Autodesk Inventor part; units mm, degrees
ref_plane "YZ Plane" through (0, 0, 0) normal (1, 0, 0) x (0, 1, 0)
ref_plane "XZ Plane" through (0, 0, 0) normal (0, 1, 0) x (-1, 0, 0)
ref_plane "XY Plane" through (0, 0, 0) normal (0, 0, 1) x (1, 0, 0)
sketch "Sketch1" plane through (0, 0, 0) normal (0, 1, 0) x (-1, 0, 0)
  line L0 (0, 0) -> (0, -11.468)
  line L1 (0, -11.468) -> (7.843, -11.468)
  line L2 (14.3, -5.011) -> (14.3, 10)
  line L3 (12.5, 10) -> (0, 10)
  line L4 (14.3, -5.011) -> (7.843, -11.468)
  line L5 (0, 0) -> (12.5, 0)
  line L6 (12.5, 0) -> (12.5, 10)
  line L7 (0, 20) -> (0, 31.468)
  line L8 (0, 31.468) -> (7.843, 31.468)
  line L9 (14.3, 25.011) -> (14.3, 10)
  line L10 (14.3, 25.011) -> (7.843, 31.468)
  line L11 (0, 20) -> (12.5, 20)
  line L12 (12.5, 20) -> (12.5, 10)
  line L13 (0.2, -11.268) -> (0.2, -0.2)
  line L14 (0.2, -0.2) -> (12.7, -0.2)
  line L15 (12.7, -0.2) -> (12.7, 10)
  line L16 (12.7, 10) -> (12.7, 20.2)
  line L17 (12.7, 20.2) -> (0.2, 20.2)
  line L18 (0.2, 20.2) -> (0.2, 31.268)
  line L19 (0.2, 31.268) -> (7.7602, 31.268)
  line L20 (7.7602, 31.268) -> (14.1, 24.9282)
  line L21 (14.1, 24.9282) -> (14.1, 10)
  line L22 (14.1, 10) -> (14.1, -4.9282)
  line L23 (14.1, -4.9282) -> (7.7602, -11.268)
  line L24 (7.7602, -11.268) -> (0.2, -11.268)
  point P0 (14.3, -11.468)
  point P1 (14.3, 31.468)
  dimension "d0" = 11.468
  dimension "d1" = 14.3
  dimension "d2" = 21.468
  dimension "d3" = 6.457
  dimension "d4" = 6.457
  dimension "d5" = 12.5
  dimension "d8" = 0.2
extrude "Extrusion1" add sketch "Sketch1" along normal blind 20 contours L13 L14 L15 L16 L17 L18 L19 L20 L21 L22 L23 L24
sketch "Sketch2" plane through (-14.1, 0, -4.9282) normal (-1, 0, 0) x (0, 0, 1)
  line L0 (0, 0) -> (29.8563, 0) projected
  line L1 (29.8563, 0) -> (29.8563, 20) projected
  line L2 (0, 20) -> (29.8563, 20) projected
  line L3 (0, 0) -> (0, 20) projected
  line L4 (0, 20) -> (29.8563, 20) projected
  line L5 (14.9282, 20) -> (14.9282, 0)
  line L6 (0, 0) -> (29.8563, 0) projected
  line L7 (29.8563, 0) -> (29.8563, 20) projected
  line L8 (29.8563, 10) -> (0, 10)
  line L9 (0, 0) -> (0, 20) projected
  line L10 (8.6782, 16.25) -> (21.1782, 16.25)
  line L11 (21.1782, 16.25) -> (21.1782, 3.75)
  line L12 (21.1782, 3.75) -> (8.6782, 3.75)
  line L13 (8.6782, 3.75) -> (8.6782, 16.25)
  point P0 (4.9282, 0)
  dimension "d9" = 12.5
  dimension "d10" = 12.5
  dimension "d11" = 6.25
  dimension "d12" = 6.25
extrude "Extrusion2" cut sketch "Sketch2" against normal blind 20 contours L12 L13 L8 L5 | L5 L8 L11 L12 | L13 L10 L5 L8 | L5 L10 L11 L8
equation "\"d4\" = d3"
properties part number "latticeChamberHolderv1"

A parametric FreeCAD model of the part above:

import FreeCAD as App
import Part
import Sketcher

V = App.Vector
Q = App.Units.Quantity

doc = App.newDocument("Part")
body = doc.addObject("PartDesign::Body", "Body")

sketch1 = body.newObject("Sketcher::SketchObject", "Sketch")
sketch1.AttachmentSupport = (doc.getObject("XZ_Plane"), [""])
sketch1.MapMode = "FlatFace"
sketch1.addGeometry([
    Part.LineSegment(V(-0.2, -0.2, 0), V(-0.2, -11.268, 0)),
    Part.LineSegment(V(-0.2, -11.268, 0), V(-7.7602, -11.268, 0)),
    Part.LineSegment(V(-7.7602, -11.268, 0), V(-14.1, -4.9282, 0)),
    Part.LineSegment(V(-14.1, -4.9282, 0), V(-14.1, 24.9282, 0)),
    Part.LineSegment(V(-14.1, 24.9282, 0), V(-7.7602, 31.268, 0)),
    Part.LineSegment(V(-7.7602, 31.268, 0), V(-0.2, 31.268, 0)),
    Part.LineSegment(V(-0.2, 31.268, 0), V(-0.2, 20.2, 0)),
    Part.LineSegment(V(-0.2, 20.2, 0), V(-12.7, 20.2, 0)),
    Part.LineSegment(V(-12.7, 20.2, 0), V(-12.7, -0.2, 0)),
    Part.LineSegment(V(-12.7, -0.2, 0), V(-0.2, -0.2, 0)),
], False)
sketch1.addConstraint([
    Sketcher.Constraint("Coincident", 0, 2, 1, 1),
    Sketcher.Constraint("Coincident", 1, 2, 2, 1),
    Sketcher.Constraint("Coincident", 2, 2, 3, 1),
    Sketcher.Constraint("Coincident", 3, 2, 4, 1),
    Sketcher.Constraint("Coincident", 4, 2, 5, 1),
    Sketcher.Constraint("Coincident", 5, 2, 6, 1),
    Sketcher.Constraint("Coincident", 6, 2, 7, 1),
    Sketcher.Constraint("Coincident", 7, 2, 8, 1),
    Sketcher.Constraint("Coincident", 8, 2, 9, 1),
    Sketcher.Constraint("Coincident", 9, 2, 0, 1),
    Sketcher.Constraint("Vertical", 0),
    Sketcher.Constraint("Horizontal", 1),
    Sketcher.Constraint("Vertical", 3),
    Sketcher.Constraint("Horizontal", 5),
    Sketcher.Constraint("Vertical", 6),
    Sketcher.Constraint("Horizontal", 7),
    Sketcher.Constraint("Vertical", 8),
    Sketcher.Constraint("Horizontal", 9),
    Sketcher.Constraint("Perpendicular", 2, 4),
    Sketcher.Constraint("Vertical", 1, 2, 4, 2),
    Sketcher.Constraint("Vertical", 0, 2, 5, 2),
    Sketcher.Constraint("Equal", 0, 6),
    Sketcher.Constraint("Equal", 2, 4),
    Sketcher.Constraint("DistanceX", 7, 2, 7, 1, Q("12.5 mm")),
    Sketcher.Constraint("DistanceX", 0, 2, -1, 1, Q("0.2 mm")),
    Sketcher.Constraint("DistanceY", 8, 2, -1, 1, Q("0.2 mm")),
    Sketcher.Constraint("DistanceY", 8, 2, 8, 1, Q("20.4 mm")),
    Sketcher.Constraint("DistanceX", 2, 2, -1, 1, Q("14.1 mm")),
    Sketcher.Constraint("DistanceY", 0, 2, 0, 1, Q("11.068 mm")),
    Sketcher.Constraint("DistanceX", 1, 2, 1, 1, Q("7.5602 mm")),
])
pad1 = body.newObject("PartDesign::Pad", "Pad")
pad1.Profile = sketch1
pad1.Length = 20
pad1.Reversed = True

sketch2 = body.newObject("Sketcher::SketchObject", "Sketch001")
sketch2.AttachmentSupport = (doc.getObject("YZ_Plane"), [""])
sketch2.MapMode = "FlatFace"
sketch2.AttachmentOffset = App.Placement(V(0, 0, -14.1), App.Rotation())
sketch2.addGeometry([
    Part.LineSegment(V(3.75, 3.75, 0), V(3.75, 16.25, 0)),
    Part.LineSegment(V(3.75, 16.25, 0), V(16.25, 16.25, 0)),
    Part.LineSegment(V(16.25, 16.25, 0), V(16.25, 3.75, 0)),
    Part.LineSegment(V(16.25, 3.75, 0), V(3.75, 3.75, 0)),
], False)
sketch2.addConstraint([
    Sketcher.Constraint("Coincident", 0, 2, 1, 1),
    Sketcher.Constraint("Coincident", 1, 2, 2, 1),
    Sketcher.Constraint("Coincident", 2, 2, 3, 1),
    Sketcher.Constraint("Coincident", 3, 2, 0, 1),
    Sketcher.Constraint("Vertical", 0),
    Sketcher.Constraint("Horizontal", 1),
    Sketcher.Constraint("Vertical", 2),
    Sketcher.Constraint("Horizontal", 3),
    Sketcher.Constraint("Equal", 3, 0),
    Sketcher.Constraint("DistanceX", 1, 1, 1, 2, Q("12.5 mm")),
    Sketcher.Constraint("DistanceX", -1, 1, 0, 2, Q("3.75 mm")),
    Sketcher.Constraint("DistanceY", -1, 1, 0, 2, Q("16.25 mm")),
])
pocket1 = body.newObject("PartDesign::Pocket", "Pocket")
pocket1.Profile = sketch2
pocket1.Length = 20
pocket1.Reversed = True

doc.recompute()
